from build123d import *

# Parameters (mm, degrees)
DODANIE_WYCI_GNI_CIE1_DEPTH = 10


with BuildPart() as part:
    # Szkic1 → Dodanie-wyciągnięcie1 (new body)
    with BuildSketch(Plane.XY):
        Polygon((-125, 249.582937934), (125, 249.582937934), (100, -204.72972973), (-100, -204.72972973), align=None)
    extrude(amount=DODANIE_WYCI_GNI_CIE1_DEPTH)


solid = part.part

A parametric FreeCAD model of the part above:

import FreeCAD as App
import Part
import Sketcher
Q = App.Units.Quantity

doc = App.newDocument("Part")
body = doc.addObject("PartDesign::Body", "Body")

# Sketch on XY plane
sketch1 = body.newObject("Sketcher::SketchObject", "Sketch")
sketch1.AttachmentSupport = (doc.getObject("XY_Plane"), [""])
sketch1.MapMode = "FlatFace"
sketch1.addGeometry(Part.LineSegment(App.Vector(125, 250, 0), App.Vector(-125, 250, 0)), False)
sketch1.addGeometry(Part.LineSegment(App.Vector(-125, 250, 0), App.Vector(-100, -205, 0)), False)
sketch1.addGeometry(Part.LineSegment(App.Vector(-100, -205, 0), App.Vector(100, -205, 0)), False)
sketch1.addGeometry(Part.LineSegment(App.Vector(100, -205, 0), App.Vector(125, 250, 0)), False)
sketch1.addConstraint(Sketcher.Constraint("Coincident", 0, 2, 1, 1))
sketch1.addConstraint(Sketcher.Constraint("Coincident", 1, 2, 2, 1))
sketch1.addConstraint(Sketcher.Constraint("Coincident", 2, 2, 3, 1))
sketch1.addConstraint(Sketcher.Constraint("Coincident", 3, 2, 0, 1))
sketch1.addConstraint(Sketcher.Constraint("Horizontal", 0))
sketch1.addConstraint(Sketcher.Constraint("Horizontal", 2))
sketch1.addConstraint(Sketcher.Constraint("Equal", 1, 3))
sketch1.addConstraint(Sketcher.Constraint("DistanceX", 0, 2, 0, 1, Q("250 mm")))
sketch1.addConstraint(Sketcher.Constraint("DistanceX", 2, 1, 2, 2, Q("200 mm")))
sketch1.addConstraint(Sketcher.Constraint("Distance", 1, Q("455 mm")))
sketch1.addConstraint(Sketcher.Constraint("DistanceX", 0, 2, -1, 1, Q("125 mm")))
sketch1.addConstraint(Sketcher.Constraint("DistanceY", 1, 2, -1, 1, Q("204.72973 mm")))
pad1 = body.newObject("PartDesign::Pad", "Pad")
pad1.Profile = sketch1
pad1.Length = 10

doc.recompute()
